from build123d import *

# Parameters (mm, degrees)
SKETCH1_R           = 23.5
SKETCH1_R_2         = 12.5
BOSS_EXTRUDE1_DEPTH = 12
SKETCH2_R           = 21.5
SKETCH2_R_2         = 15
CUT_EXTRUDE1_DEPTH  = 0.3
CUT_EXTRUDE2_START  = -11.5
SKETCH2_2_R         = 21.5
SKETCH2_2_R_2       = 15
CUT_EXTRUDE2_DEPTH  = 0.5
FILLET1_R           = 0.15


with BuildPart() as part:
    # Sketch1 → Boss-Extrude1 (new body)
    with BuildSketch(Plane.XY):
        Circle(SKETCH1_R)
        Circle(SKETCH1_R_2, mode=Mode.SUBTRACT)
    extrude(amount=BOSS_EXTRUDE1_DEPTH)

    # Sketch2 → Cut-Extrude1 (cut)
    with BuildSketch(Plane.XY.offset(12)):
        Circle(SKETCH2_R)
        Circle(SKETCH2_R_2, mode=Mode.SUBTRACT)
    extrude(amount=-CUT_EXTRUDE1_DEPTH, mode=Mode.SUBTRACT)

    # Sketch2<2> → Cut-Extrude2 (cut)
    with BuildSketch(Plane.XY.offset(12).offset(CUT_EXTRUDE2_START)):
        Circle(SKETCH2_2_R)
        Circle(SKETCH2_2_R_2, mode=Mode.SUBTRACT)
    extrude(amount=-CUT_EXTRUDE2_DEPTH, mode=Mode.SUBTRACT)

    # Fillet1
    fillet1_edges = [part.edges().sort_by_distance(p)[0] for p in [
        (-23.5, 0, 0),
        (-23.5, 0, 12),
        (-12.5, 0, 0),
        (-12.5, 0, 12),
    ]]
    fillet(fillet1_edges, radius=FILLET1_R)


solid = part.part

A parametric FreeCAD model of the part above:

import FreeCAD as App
import Part
import Sketcher
Q = App.Units.Quantity


def edges_at(feature, points):
    """Names of the edges that pass closest to the given points."""
    edges = feature.Shape.Edges
    near = lambda p: min(range(len(edges)), key=lambda i: edges[i].distToShape(Part.Vertex(*p))[0])
    return sorted({f"Edge{near(p) + 1}" for p in points})

doc = App.newDocument("Part")
params = doc.addObject("Spreadsheet::Sheet", "Params")
for row, (alias, value) in enumerate([
    ("sketch1_diameter", "47 mm"),
    ("sketch1_diameter2", "25 mm"),
    ("pad1_length", "12 mm"),
    ("sketch2_diameter", "43 mm"),
    ("sketch2_diameter2", "30 mm"),
    ("pocket1_length", "0.3 mm"),
    ("sketch3_diameter", "43 mm"),
    ("sketch3_diameter2", "30 mm"),
    ("pocket2_length", "0.5 mm"),
    ("fillet_radius", "0.15 mm"),
], start=1):
    params.set(f"A{row}", alias)
    params.set(f"B{row}", "=" + value)
    params.setAlias(f"B{row}", alias)

body = doc.addObject("PartDesign::Body", "Body")

sketch1 = body.newObject("Sketcher::SketchObject", "Sketch")
sketch1.AttachmentSupport = (doc.getObject("XY_Plane"), [""])
sketch1.MapMode = "FlatFace"
sketch1.addGeometry([
    Part.Circle(App.Vector(0, 0, 0), App.Vector(0, 0, 1), 24),
    Part.Circle(App.Vector(0, 0, 0), App.Vector(0, 0, 1), 12),
], False)
sketch1.addConstraint([
    Sketcher.Constraint("Coincident", 0, 3, -1, 1),
    Sketcher.Constraint("Coincident", 1, 3, -1, 1),
    Sketcher.Constraint("Diameter", 0, Q("47 mm")),
    Sketcher.Constraint("Diameter", 1, Q("25 mm")),
])
sketch1.setExpression("Constraints[2]", "Params.sketch1_diameter")
sketch1.setExpression("Constraints[3]", "Params.sketch1_diameter2")
pad1 = body.newObject("PartDesign::Pad", "Pad")
pad1.Profile = sketch1
pad1.setExpression("Length", "Params.pad1_length")

sketch2 = body.newObject("Sketcher::SketchObject", "Sketch001")
sketch2.AttachmentSupport = (doc.getObject("XY_Plane"), [""])
sketch2.MapMode = "FlatFace"
sketch2.AttachmentOffset = App.Placement(App.Vector(0, 0, 12), App.Rotation())
sketch2.addGeometry([
    Part.Circle(App.Vector(0, 0, 0), App.Vector(0, 0, 1), 22),
    Part.Circle(App.Vector(0, 0, 0), App.Vector(0, 0, 1), 15),
], False)
sketch2.addConstraint([
    Sketcher.Constraint("Coincident", 0, 3, -1, 1),
    Sketcher.Constraint("Coincident", 1, 3, -1, 1),
    Sketcher.Constraint("Diameter", 0, Q("43 mm")),
    Sketcher.Constraint("Diameter", 1, Q("30 mm")),
])
sketch2.setExpression("Constraints[2]", "Params.sketch2_diameter")
sketch2.setExpression("Constraints[3]", "Params.sketch2_diameter2")
pocket1 = body.newObject("PartDesign::Pocket", "Pocket")
pocket1.Profile = sketch2
pocket1.setExpression("Length", "Params.pocket1_length")

sketch3 = body.newObject("Sketcher::SketchObject", "Sketch002")
sketch3.AttachmentSupport = (doc.getObject("XY_Plane"), [""])
sketch3.MapMode = "FlatFace"
sketch3.AttachmentOffset = App.Placement(App.Vector(0, 0, 0.5), App.Rotation())
sketch3.addGeometry([
    Part.Circle(App.Vector(0, 0, 0), App.Vector(0, 0, 1), 22),
    Part.Circle(App.Vector(0, 0, 0), App.Vector(0, 0, 1), 15),
], False)
sketch3.addConstraint([
    Sketcher.Constraint("Coincident", 0, 3, -1, 1),
    Sketcher.Constraint("Coincident", 1, 3, -1, 1),
    Sketcher.Constraint("Diameter", 0, Q("43 mm")),
    Sketcher.Constraint("Diameter", 1, Q("30 mm")),
])
sketch3.setExpression("Constraints[2]", "Params.sketch3_diameter")
sketch3.setExpression("Constraints[3]", "Params.sketch3_diameter2")
pocket2 = body.newObject("PartDesign::Pocket", "Pocket001")
pocket2.Profile = sketch3
pocket2.setExpression("Length", "Params.pocket2_length")
doc.recompute()

fillet = body.newObject("PartDesign::Fillet", "Fillet")
fillet.Base = (pocket2, edges_at(pocket2, [
    (-23.5, 0, 0),
    (-23.5, 0, 12),
    (-12.5, 0, 0),
    (-12.5, 0, 12),
]))
fillet.setExpression("Radius", "Params.fillet_radius")

doc.recompute()
